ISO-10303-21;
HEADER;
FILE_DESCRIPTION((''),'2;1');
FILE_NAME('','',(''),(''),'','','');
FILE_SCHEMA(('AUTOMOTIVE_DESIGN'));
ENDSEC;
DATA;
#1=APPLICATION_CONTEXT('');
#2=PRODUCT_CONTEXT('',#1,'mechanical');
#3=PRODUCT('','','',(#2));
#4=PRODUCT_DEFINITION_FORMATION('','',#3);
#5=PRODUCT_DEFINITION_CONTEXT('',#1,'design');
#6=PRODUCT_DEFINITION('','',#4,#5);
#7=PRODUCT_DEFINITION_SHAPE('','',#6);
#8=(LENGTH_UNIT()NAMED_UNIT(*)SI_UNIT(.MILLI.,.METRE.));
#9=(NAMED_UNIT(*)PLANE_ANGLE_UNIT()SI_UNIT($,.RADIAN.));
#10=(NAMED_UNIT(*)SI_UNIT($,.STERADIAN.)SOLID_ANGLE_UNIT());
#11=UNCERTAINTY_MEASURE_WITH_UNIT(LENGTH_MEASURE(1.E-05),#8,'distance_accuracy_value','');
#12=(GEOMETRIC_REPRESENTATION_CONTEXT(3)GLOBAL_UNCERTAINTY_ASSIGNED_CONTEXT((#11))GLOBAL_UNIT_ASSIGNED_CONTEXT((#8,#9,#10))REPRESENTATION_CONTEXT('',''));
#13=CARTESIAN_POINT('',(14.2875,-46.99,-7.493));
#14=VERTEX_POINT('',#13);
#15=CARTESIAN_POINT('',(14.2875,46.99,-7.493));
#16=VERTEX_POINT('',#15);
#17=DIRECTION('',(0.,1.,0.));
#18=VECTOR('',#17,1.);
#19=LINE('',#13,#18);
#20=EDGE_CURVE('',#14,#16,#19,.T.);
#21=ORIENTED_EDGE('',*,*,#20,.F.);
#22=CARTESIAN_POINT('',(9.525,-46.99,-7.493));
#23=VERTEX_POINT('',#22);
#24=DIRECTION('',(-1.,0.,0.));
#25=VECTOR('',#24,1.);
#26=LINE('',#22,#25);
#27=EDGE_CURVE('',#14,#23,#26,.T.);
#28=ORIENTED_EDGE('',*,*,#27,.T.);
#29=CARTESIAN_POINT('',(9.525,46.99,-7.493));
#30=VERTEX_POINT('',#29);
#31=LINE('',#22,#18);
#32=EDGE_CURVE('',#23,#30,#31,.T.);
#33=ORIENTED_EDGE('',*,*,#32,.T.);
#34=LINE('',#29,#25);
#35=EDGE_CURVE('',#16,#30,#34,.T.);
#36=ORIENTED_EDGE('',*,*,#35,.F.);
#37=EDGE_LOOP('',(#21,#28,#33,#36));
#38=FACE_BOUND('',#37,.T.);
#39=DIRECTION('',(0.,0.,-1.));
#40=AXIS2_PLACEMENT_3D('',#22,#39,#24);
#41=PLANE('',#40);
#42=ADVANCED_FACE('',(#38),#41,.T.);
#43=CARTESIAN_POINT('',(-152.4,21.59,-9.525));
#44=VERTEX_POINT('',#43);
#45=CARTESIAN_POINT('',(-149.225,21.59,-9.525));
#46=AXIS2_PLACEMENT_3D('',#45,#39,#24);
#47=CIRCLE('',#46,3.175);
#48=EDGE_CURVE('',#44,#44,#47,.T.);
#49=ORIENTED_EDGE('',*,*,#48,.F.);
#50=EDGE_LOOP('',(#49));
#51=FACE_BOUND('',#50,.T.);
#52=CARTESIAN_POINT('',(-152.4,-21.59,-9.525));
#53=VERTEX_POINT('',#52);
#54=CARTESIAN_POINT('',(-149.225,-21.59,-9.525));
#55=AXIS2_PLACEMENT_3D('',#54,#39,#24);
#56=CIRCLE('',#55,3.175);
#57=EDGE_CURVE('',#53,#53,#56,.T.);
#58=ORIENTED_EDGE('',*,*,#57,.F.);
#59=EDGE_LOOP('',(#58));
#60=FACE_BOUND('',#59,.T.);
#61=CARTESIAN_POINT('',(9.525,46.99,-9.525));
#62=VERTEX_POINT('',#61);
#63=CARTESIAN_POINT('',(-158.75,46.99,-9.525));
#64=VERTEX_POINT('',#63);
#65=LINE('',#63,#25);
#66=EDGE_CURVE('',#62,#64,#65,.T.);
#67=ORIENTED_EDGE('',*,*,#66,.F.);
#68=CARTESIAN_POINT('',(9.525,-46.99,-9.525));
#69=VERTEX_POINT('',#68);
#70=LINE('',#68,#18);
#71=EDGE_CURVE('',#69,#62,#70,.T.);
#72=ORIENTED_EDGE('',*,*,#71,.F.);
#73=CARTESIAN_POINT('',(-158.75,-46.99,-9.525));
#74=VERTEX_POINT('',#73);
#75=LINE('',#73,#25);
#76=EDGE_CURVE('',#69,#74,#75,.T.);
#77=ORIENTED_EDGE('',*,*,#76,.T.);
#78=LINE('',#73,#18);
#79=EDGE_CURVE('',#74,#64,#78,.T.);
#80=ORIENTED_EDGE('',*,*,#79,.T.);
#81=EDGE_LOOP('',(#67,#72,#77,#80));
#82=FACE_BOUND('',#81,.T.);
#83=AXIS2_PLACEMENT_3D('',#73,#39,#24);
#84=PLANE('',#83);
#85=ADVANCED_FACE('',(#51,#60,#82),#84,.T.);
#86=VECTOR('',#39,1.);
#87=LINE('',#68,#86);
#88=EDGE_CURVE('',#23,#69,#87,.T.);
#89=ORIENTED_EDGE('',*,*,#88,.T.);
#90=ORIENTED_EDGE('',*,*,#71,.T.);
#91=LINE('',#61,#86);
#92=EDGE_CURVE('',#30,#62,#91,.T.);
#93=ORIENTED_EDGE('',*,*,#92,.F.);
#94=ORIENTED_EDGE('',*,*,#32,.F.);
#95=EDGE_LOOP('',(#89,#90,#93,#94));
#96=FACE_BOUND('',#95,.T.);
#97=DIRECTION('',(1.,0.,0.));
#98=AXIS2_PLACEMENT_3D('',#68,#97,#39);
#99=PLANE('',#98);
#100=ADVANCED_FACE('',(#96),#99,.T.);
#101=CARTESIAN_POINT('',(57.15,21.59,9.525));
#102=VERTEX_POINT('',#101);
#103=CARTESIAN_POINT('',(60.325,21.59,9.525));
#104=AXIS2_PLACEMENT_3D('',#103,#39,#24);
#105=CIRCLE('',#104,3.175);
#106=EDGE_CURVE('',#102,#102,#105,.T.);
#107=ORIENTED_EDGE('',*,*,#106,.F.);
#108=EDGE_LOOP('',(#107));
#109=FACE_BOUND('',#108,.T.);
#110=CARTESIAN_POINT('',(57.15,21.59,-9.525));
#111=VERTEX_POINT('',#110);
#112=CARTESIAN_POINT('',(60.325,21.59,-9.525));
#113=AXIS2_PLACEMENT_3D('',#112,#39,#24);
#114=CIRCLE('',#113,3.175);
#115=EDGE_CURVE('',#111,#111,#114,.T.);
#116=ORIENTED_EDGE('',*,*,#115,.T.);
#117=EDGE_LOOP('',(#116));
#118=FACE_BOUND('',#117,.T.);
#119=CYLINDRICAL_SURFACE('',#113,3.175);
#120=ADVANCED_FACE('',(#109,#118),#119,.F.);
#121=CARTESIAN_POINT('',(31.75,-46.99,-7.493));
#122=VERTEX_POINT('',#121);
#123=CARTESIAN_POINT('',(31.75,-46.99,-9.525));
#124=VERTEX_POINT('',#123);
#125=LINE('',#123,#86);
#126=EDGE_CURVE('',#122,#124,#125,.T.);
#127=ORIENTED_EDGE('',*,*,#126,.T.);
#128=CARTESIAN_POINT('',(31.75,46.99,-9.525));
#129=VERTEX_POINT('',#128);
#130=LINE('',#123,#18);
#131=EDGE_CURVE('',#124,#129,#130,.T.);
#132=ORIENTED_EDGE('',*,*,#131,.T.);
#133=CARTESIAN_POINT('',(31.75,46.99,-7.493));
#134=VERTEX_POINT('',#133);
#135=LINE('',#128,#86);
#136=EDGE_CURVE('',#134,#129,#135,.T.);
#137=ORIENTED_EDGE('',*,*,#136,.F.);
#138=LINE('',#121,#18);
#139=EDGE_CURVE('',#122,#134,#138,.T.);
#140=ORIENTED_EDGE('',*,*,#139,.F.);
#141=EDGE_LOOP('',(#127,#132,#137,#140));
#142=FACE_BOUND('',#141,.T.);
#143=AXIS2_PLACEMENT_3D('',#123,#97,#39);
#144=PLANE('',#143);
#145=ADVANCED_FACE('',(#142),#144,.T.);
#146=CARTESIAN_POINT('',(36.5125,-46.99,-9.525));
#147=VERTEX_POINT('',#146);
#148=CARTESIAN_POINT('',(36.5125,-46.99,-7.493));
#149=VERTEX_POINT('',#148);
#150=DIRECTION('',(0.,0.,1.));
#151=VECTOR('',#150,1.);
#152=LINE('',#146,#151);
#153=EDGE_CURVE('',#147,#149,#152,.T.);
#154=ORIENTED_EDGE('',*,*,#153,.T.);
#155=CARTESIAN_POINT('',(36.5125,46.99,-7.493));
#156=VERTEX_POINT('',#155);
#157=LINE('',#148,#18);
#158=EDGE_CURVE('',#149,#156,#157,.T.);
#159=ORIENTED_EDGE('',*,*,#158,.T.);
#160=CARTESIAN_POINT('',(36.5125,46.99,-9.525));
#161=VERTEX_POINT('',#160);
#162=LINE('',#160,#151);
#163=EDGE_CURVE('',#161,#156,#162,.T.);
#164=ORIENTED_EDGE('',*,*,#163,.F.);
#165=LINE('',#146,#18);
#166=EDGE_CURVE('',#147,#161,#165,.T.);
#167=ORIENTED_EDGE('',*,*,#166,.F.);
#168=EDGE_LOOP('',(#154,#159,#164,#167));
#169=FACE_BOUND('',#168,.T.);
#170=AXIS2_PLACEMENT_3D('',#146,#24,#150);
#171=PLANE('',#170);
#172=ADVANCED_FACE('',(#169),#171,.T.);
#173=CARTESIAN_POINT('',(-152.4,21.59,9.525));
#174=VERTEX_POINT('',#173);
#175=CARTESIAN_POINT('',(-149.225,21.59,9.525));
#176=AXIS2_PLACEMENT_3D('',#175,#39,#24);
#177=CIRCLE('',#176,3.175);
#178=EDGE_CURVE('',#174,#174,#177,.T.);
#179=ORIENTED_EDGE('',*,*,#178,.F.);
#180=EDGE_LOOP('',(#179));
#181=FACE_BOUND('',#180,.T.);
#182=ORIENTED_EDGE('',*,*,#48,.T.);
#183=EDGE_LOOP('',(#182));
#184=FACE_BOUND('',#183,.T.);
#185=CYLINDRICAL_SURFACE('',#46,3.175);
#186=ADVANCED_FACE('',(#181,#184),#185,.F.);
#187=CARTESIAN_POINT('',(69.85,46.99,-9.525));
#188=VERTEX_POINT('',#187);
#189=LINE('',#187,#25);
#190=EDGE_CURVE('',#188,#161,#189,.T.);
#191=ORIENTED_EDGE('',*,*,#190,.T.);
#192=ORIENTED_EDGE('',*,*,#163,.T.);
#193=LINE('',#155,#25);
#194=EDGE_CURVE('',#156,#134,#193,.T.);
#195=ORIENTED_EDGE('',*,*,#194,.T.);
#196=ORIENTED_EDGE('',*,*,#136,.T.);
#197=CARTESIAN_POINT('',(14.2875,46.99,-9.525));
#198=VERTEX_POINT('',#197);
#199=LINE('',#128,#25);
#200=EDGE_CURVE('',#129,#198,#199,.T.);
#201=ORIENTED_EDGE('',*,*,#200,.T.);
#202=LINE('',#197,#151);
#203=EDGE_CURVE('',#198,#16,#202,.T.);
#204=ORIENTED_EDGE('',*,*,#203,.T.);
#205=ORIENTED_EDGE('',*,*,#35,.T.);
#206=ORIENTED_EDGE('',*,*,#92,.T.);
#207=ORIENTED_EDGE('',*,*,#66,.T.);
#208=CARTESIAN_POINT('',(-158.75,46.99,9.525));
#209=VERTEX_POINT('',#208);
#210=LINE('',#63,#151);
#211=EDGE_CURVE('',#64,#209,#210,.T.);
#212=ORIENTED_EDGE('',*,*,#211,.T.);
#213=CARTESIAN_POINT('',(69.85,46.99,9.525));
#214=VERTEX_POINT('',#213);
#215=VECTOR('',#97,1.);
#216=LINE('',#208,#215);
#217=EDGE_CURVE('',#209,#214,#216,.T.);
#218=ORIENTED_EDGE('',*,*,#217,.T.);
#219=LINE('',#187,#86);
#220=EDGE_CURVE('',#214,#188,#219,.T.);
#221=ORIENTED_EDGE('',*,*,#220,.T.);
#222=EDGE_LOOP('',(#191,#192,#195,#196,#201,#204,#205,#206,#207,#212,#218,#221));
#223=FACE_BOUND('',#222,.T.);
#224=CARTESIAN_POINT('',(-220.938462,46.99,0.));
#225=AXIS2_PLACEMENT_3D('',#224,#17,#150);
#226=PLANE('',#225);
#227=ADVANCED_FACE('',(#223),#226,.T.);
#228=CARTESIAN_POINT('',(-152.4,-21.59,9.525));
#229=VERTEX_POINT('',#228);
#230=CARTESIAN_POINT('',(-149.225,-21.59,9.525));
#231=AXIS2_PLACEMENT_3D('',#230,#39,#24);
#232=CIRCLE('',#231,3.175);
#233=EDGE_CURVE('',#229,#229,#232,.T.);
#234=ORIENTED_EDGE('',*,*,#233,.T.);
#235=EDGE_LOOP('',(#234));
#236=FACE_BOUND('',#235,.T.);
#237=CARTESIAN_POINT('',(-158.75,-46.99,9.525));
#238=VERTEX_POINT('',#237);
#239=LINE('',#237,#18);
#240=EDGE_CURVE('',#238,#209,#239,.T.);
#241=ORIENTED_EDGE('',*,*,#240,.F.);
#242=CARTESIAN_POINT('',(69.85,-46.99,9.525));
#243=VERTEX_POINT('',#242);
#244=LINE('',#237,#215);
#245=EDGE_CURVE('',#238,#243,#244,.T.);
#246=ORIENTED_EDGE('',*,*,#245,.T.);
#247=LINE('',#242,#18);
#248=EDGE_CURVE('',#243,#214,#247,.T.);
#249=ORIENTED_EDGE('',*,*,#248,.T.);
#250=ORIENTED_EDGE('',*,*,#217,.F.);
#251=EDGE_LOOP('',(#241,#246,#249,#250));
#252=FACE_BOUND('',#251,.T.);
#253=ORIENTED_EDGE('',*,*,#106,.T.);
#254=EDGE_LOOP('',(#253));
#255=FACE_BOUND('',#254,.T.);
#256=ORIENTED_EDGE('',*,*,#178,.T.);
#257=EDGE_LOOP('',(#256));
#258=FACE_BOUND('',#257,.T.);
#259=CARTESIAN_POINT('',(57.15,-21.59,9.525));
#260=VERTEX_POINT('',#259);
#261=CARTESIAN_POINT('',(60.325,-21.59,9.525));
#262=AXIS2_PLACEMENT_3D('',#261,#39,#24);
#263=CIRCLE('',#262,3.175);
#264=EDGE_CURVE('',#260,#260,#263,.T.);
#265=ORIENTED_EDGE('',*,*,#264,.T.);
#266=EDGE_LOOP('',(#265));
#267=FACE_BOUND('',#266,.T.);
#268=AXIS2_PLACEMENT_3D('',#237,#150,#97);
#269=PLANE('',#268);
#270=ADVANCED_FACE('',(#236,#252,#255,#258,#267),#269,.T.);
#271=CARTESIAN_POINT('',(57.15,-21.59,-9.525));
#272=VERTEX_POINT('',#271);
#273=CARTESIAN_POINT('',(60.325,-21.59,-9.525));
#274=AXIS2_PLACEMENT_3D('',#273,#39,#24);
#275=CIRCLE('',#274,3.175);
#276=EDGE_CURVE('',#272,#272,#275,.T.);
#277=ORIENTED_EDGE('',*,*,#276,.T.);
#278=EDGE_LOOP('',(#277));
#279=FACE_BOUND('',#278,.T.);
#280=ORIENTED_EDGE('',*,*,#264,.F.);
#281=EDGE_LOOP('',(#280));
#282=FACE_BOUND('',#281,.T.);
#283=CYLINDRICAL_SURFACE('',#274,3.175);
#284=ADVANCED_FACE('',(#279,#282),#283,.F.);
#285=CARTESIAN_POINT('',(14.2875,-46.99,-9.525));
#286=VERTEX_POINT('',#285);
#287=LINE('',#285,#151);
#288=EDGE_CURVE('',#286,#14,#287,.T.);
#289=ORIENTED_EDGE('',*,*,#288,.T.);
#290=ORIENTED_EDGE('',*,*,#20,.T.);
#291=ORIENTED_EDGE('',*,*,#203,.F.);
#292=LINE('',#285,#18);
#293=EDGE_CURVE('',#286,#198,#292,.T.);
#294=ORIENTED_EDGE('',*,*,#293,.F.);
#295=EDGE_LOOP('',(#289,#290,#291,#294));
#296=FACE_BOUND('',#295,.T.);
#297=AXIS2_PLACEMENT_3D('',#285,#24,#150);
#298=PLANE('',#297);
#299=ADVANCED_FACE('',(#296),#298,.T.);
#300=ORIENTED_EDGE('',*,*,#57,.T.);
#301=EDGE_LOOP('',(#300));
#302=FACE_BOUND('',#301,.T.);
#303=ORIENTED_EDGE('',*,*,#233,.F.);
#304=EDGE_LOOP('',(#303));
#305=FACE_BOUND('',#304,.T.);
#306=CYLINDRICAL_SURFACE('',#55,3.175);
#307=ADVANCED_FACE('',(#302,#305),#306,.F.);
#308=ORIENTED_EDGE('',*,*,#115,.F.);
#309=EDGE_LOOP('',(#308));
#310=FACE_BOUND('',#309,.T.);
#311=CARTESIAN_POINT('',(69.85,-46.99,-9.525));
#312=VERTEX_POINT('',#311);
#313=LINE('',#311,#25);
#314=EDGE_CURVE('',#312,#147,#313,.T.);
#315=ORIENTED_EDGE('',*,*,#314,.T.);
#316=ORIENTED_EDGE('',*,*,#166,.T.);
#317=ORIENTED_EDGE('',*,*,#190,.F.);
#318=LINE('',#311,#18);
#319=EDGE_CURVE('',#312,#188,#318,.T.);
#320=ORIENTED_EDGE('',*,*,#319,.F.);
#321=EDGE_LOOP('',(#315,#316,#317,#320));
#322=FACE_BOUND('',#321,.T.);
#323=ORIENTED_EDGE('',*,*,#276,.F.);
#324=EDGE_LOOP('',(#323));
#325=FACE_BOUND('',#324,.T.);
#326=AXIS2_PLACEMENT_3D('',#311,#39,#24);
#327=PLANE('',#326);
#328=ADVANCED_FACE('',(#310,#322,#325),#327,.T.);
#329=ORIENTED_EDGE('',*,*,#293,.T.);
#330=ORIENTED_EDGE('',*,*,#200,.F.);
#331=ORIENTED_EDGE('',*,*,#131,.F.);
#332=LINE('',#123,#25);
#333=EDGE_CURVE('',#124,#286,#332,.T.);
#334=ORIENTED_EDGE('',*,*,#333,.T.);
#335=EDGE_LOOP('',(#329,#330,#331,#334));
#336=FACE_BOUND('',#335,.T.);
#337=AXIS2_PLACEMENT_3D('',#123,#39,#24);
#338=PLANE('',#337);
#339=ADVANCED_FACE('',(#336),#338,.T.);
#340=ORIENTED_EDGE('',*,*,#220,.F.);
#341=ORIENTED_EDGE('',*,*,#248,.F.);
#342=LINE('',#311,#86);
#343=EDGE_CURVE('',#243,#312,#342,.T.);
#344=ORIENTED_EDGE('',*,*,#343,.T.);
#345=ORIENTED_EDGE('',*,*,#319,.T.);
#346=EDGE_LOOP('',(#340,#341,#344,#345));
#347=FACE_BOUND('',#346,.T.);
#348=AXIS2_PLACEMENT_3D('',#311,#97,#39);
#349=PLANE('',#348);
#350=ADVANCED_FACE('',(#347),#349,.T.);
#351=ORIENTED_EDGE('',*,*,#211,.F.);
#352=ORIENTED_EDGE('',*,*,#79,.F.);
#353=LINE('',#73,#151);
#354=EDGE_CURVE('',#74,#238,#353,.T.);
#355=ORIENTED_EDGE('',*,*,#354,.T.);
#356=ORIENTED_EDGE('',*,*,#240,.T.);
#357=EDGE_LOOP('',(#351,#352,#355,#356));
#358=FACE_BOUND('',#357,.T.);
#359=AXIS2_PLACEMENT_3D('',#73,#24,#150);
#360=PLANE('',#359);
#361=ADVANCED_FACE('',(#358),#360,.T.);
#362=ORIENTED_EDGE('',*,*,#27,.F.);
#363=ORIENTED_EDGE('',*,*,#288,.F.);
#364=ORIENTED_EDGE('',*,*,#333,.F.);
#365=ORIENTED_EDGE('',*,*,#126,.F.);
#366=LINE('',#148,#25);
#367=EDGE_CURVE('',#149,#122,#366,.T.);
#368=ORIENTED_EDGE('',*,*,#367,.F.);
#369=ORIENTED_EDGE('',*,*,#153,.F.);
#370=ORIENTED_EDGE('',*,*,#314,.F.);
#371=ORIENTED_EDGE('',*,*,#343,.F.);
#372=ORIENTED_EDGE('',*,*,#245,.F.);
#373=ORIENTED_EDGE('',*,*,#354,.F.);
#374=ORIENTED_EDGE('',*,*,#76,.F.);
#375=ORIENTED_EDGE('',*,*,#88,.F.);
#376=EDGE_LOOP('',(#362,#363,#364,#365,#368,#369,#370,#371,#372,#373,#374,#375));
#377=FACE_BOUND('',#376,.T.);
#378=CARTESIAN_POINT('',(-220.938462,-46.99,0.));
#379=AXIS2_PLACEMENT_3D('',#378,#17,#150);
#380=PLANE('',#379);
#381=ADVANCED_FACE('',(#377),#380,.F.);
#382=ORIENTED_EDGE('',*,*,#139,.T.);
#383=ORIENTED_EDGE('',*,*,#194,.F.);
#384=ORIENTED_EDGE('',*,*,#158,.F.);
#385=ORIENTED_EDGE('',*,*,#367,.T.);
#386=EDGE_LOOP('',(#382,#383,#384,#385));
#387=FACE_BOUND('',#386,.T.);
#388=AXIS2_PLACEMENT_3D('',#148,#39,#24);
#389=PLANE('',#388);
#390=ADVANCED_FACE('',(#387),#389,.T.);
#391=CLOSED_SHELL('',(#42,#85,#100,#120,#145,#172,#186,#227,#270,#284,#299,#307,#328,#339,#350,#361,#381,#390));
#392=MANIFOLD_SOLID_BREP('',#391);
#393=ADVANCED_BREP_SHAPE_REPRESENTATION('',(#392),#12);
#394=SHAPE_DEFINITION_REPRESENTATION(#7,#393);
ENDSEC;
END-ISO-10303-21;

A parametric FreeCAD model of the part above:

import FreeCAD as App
import Part
import Sketcher

V = App.Vector
Q = App.Units.Quantity

doc = App.newDocument("Part")
body = doc.addObject("PartDesign::Body", "Body")

sketch1 = body.newObject("Sketcher::SketchObject", "Sketch")
sketch1.AttachmentSupport = (doc.getObject("XZ_Plane"), [""])
sketch1.MapMode = "FlatFace"
sketch1.addGeometry([
    Part.LineSegment(V(69.8, -9.5, 0), V(36.5, -9.5, 0)),
    Part.LineSegment(V(36.5, -9.5, 0), V(36.5, -7.5, 0)),
    Part.LineSegment(V(36.5, -7.5, 0), V(31.8, -7.5, 0)),
    Part.LineSegment(V(31.8, -7.5, 0), V(31.8, -9.5, 0)),
    Part.LineSegment(V(31.8, -9.5, 0), V(14.3, -9.5, 0)),
    Part.LineSegment(V(14.3, -9.5, 0), V(14.3, -7.5, 0)),
    Part.LineSegment(V(14.3, -7.5, 0), V(9.5, -7.5, 0)),
    Part.LineSegment(V(9.5, -7.5, 0), V(9.5, -9.5, 0)),
    Part.LineSegment(V(9.5, -9.5, 0), V(-158.7, -9.5, 0)),
    Part.LineSegment(V(-158.7, -9.5, 0), V(-158.7, 9.5, 0)),
    Part.LineSegment(V(-158.7, 9.5, 0), V(69.9, 9.5, 0)),
    Part.LineSegment(V(69.9, 9.5, 0), V(69.8, -9.5, 0)),
], False)
sketch1.addConstraint([
    Sketcher.Constraint("Coincident", 0, 2, 1, 1),
    Sketcher.Constraint("Coincident", 1, 2, 2, 1),
    Sketcher.Constraint("Coincident", 2, 2, 3, 1),
    Sketcher.Constraint("Coincident", 3, 2, 4, 1),
    Sketcher.Constraint("Coincident", 4, 2, 5, 1),
    Sketcher.Constraint("Coincident", 5, 2, 6, 1),
    Sketcher.Constraint("Coincident", 6, 2, 7, 1),
    Sketcher.Constraint("Coincident", 7, 2, 8, 1),
    Sketcher.Constraint("Coincident", 8, 2, 9, 1),
    Sketcher.Constraint("Coincident", 9, 2, 10, 1),
    Sketcher.Constraint("Coincident", 10, 2, 11, 1),
    Sketcher.Constraint("Coincident", 11, 2, 0, 1),
    Sketcher.Constraint("Horizontal", 0),
    Sketcher.Constraint("Vertical", 1),
    Sketcher.Constraint("Horizontal", 2),
    Sketcher.Constraint("Vertical", 3),
    Sketcher.Constraint("Horizontal", 4),
    Sketcher.Constraint("Vertical", 5),
    Sketcher.Constraint("Horizontal", 6),
    Sketcher.Constraint("Vertical", 7),
    Sketcher.Constraint("Horizontal", 8),
    Sketcher.Constraint("Vertical", 9),
    Sketcher.Constraint("Horizontal", 10),
    Sketcher.Constraint("Vertical", 11),
    Sketcher.Constraint("Horizontal", 0, 2, 3, 2),
    Sketcher.Constraint("Horizontal", 2, 2, 5, 2),
    Sketcher.Constraint("Horizontal", 4, 2, 7, 2),
    Sketcher.Constraint("Equal", 2, 6),
    Sketcher.Constraint("DistanceX", 10, 1, 10, 2, Q("9 in")),
    Sketcher.Constraint("DistanceY", 1, 1, 1, 2, Q("0.08 in")),
    Sketcher.Constraint("DistanceY", 9, 1, 9, 2, Q("0.75 in")),
    Sketcher.Constraint("DistanceX", 8, 2, 3, 2, Q("7.5 in")),
    Sketcher.Constraint("DistanceX", 0, 2, 0, 1, Q("1.3125 in")),
    Sketcher.Constraint("DistanceX", 4, 2, 4, 1, Q("0.6875 in")),
    Sketcher.Constraint("DistanceX", -1, 1, 2, 2, Q("1.25 in")),
    Sketcher.Constraint("DistanceY", 0, 2, -1, 1, Q("0.375 in")),
])
pad1 = body.newObject("PartDesign::Pad", "Pad")
pad1.Profile = sketch1
pad1.Length = Q("3.7 in")
pad1.Midplane = True

sketch2 = body.newObject("Sketcher::SketchObject", "Sketch001")
sketch2.AttachmentSupport = (doc.getObject("YZ_Plane"), [""])
sketch2.MapMode = "FlatFace"
sketch2.AttachmentOffset = App.Placement(V(0, 0, -5.875 * 25.4), App.Rotation())
sketch2.addGeometry([
    Part.LineSegment(V(-21.6, 11.4, 0), V(-21.6, -9.5, 0)),
    Part.LineSegment(V(-21.6, -9.5, 0), V(-18.4, -9.5, 0)),
    Part.LineSegment(V(-18.4, -9.5, 0), V(-18.4, 9.5, 0)),
    Part.LineSegment(V(-18.4, 9.5, 0), V(-21.6, 11.4, 0)),
], False)
sketch2.addGeometry(Part.LineSegment(V(-21.6, -9.5, 0), V(-21.6, 11.4, 0)), True)
sketch2.addConstraint([
    Sketcher.Constraint("Coincident", 0, 2, 1, 1),
    Sketcher.Constraint("Coincident", 1, 2, 2, 1),
    Sketcher.Constraint("Coincident", 2, 2, 3, 1),
    Sketcher.Constraint("Coincident", 3, 2, 0, 1),
    Sketcher.Constraint("Vertical", 0),
    Sketcher.Constraint("Horizontal", 1),
    Sketcher.Constraint("Vertical", 2),
    Sketcher.Constraint("Vertical", 4),
    Sketcher.Constraint("Coincident", 4, 1, 0, 2),
    Sketcher.Constraint("Equal", 0, 4),
    Sketcher.Constraint("Angle", 3, Q("149 deg")),
    Sketcher.Constraint("DistanceY", 2, 1, 2, 2, Q("0.75 in")),
    Sketcher.Constraint("DistanceX", 1, 1, 1, 2, Q("0.125 in")),
    Sketcher.Constraint("DistanceX", 0, 2, -1, 1, Q("0.85 in")),
    Sketcher.Constraint("DistanceY", 0, 2, -1, 1, Q("0.375 in")),
])
groove = body.newObject("PartDesign::Groove", "Groove")
groove.Profile = sketch2
groove.ReferenceAxis = (sketch2, ["Axis0"])
groove.Angle = 360
doc.recompute()

mirrored = body.newObject("PartDesign::Mirrored", "Mirrored")
mirrored.Originals = [groove]
mirrored.MirrorPlane = (doc.getObject("XZ_Plane"), [""])
body.Tip = mirrored

sketch3 = body.newObject("Sketcher::SketchObject", "Sketch002")
sketch3.AttachmentSupport = (doc.getObject("YZ_Plane"), [""])
sketch3.MapMode = "FlatFace"
sketch3.AttachmentOffset = App.Placement(V(0, 0, 2.375 * 25.4), App.Rotation())
sketch3.addGeometry([
    Part.LineSegment(V(-21.6, 11.4, 0), V(-21.6, -9.5, 0)),
    Part.LineSegment(V(-21.6, -9.5, 0), V(-18.4, -9.5, 0)),
    Part.LineSegment(V(-18.4, -9.5, 0), V(-18.4, 9.5, 0)),
    Part.LineSegment(V(-18.4, 9.5, 0), V(-21.6, 11.4, 0)),
], False)
sketch3.addGeometry(Part.LineSegment(V(-21.6, -9.5, 0), V(-21.6, 11.4, 0)), True)
sketch3.addConstraint([
    Sketcher.Constraint("Coincident", 0, 2, 1, 1),
    Sketcher.Constraint("Coincident", 1, 2, 2, 1),
    Sketcher.Constraint("Coincident", 2, 2, 3, 1),
    Sketcher.Constraint("Coincident", 3, 2, 0, 1),
    Sketcher.Constraint("Vertical", 0),
    Sketcher.Constraint("Horizontal", 1),
    Sketcher.Constraint("Vertical", 2),
    Sketcher.Constraint("Vertical", 4),
    Sketcher.Constraint("Coincident", 4, 1, 0, 2),
    Sketcher.Constraint("Equal", 0, 4),
    Sketcher.Constraint("Angle", 3, Q("149 deg")),
    Sketcher.Constraint("DistanceY", 2, 1, 2, 2, Q("0.75 in")),
    Sketcher.Constraint("DistanceX", 1, 1, 1, 2, Q("0.125 in")),
    Sketcher.Constraint("DistanceX", 0, 2, -1, 1, Q("0.85 in")),
    Sketcher.Constraint("DistanceY", 0, 2, -1, 1, Q("0.375 in")),
])
groove2 = body.newObject("PartDesign::Groove", "Groove001")
groove2.Profile = sketch3
groove2.ReferenceAxis = (sketch3, ["Axis0"])
groove2.Angle = 360
doc.recompute()

mirrored2 = body.newObject("PartDesign::Mirrored", "Mirrored001")
mirrored2.Originals = [groove2]
mirrored2.MirrorPlane = (doc.getObject("XZ_Plane"), [""])
body.Tip = mirrored2

doc.recompute()
